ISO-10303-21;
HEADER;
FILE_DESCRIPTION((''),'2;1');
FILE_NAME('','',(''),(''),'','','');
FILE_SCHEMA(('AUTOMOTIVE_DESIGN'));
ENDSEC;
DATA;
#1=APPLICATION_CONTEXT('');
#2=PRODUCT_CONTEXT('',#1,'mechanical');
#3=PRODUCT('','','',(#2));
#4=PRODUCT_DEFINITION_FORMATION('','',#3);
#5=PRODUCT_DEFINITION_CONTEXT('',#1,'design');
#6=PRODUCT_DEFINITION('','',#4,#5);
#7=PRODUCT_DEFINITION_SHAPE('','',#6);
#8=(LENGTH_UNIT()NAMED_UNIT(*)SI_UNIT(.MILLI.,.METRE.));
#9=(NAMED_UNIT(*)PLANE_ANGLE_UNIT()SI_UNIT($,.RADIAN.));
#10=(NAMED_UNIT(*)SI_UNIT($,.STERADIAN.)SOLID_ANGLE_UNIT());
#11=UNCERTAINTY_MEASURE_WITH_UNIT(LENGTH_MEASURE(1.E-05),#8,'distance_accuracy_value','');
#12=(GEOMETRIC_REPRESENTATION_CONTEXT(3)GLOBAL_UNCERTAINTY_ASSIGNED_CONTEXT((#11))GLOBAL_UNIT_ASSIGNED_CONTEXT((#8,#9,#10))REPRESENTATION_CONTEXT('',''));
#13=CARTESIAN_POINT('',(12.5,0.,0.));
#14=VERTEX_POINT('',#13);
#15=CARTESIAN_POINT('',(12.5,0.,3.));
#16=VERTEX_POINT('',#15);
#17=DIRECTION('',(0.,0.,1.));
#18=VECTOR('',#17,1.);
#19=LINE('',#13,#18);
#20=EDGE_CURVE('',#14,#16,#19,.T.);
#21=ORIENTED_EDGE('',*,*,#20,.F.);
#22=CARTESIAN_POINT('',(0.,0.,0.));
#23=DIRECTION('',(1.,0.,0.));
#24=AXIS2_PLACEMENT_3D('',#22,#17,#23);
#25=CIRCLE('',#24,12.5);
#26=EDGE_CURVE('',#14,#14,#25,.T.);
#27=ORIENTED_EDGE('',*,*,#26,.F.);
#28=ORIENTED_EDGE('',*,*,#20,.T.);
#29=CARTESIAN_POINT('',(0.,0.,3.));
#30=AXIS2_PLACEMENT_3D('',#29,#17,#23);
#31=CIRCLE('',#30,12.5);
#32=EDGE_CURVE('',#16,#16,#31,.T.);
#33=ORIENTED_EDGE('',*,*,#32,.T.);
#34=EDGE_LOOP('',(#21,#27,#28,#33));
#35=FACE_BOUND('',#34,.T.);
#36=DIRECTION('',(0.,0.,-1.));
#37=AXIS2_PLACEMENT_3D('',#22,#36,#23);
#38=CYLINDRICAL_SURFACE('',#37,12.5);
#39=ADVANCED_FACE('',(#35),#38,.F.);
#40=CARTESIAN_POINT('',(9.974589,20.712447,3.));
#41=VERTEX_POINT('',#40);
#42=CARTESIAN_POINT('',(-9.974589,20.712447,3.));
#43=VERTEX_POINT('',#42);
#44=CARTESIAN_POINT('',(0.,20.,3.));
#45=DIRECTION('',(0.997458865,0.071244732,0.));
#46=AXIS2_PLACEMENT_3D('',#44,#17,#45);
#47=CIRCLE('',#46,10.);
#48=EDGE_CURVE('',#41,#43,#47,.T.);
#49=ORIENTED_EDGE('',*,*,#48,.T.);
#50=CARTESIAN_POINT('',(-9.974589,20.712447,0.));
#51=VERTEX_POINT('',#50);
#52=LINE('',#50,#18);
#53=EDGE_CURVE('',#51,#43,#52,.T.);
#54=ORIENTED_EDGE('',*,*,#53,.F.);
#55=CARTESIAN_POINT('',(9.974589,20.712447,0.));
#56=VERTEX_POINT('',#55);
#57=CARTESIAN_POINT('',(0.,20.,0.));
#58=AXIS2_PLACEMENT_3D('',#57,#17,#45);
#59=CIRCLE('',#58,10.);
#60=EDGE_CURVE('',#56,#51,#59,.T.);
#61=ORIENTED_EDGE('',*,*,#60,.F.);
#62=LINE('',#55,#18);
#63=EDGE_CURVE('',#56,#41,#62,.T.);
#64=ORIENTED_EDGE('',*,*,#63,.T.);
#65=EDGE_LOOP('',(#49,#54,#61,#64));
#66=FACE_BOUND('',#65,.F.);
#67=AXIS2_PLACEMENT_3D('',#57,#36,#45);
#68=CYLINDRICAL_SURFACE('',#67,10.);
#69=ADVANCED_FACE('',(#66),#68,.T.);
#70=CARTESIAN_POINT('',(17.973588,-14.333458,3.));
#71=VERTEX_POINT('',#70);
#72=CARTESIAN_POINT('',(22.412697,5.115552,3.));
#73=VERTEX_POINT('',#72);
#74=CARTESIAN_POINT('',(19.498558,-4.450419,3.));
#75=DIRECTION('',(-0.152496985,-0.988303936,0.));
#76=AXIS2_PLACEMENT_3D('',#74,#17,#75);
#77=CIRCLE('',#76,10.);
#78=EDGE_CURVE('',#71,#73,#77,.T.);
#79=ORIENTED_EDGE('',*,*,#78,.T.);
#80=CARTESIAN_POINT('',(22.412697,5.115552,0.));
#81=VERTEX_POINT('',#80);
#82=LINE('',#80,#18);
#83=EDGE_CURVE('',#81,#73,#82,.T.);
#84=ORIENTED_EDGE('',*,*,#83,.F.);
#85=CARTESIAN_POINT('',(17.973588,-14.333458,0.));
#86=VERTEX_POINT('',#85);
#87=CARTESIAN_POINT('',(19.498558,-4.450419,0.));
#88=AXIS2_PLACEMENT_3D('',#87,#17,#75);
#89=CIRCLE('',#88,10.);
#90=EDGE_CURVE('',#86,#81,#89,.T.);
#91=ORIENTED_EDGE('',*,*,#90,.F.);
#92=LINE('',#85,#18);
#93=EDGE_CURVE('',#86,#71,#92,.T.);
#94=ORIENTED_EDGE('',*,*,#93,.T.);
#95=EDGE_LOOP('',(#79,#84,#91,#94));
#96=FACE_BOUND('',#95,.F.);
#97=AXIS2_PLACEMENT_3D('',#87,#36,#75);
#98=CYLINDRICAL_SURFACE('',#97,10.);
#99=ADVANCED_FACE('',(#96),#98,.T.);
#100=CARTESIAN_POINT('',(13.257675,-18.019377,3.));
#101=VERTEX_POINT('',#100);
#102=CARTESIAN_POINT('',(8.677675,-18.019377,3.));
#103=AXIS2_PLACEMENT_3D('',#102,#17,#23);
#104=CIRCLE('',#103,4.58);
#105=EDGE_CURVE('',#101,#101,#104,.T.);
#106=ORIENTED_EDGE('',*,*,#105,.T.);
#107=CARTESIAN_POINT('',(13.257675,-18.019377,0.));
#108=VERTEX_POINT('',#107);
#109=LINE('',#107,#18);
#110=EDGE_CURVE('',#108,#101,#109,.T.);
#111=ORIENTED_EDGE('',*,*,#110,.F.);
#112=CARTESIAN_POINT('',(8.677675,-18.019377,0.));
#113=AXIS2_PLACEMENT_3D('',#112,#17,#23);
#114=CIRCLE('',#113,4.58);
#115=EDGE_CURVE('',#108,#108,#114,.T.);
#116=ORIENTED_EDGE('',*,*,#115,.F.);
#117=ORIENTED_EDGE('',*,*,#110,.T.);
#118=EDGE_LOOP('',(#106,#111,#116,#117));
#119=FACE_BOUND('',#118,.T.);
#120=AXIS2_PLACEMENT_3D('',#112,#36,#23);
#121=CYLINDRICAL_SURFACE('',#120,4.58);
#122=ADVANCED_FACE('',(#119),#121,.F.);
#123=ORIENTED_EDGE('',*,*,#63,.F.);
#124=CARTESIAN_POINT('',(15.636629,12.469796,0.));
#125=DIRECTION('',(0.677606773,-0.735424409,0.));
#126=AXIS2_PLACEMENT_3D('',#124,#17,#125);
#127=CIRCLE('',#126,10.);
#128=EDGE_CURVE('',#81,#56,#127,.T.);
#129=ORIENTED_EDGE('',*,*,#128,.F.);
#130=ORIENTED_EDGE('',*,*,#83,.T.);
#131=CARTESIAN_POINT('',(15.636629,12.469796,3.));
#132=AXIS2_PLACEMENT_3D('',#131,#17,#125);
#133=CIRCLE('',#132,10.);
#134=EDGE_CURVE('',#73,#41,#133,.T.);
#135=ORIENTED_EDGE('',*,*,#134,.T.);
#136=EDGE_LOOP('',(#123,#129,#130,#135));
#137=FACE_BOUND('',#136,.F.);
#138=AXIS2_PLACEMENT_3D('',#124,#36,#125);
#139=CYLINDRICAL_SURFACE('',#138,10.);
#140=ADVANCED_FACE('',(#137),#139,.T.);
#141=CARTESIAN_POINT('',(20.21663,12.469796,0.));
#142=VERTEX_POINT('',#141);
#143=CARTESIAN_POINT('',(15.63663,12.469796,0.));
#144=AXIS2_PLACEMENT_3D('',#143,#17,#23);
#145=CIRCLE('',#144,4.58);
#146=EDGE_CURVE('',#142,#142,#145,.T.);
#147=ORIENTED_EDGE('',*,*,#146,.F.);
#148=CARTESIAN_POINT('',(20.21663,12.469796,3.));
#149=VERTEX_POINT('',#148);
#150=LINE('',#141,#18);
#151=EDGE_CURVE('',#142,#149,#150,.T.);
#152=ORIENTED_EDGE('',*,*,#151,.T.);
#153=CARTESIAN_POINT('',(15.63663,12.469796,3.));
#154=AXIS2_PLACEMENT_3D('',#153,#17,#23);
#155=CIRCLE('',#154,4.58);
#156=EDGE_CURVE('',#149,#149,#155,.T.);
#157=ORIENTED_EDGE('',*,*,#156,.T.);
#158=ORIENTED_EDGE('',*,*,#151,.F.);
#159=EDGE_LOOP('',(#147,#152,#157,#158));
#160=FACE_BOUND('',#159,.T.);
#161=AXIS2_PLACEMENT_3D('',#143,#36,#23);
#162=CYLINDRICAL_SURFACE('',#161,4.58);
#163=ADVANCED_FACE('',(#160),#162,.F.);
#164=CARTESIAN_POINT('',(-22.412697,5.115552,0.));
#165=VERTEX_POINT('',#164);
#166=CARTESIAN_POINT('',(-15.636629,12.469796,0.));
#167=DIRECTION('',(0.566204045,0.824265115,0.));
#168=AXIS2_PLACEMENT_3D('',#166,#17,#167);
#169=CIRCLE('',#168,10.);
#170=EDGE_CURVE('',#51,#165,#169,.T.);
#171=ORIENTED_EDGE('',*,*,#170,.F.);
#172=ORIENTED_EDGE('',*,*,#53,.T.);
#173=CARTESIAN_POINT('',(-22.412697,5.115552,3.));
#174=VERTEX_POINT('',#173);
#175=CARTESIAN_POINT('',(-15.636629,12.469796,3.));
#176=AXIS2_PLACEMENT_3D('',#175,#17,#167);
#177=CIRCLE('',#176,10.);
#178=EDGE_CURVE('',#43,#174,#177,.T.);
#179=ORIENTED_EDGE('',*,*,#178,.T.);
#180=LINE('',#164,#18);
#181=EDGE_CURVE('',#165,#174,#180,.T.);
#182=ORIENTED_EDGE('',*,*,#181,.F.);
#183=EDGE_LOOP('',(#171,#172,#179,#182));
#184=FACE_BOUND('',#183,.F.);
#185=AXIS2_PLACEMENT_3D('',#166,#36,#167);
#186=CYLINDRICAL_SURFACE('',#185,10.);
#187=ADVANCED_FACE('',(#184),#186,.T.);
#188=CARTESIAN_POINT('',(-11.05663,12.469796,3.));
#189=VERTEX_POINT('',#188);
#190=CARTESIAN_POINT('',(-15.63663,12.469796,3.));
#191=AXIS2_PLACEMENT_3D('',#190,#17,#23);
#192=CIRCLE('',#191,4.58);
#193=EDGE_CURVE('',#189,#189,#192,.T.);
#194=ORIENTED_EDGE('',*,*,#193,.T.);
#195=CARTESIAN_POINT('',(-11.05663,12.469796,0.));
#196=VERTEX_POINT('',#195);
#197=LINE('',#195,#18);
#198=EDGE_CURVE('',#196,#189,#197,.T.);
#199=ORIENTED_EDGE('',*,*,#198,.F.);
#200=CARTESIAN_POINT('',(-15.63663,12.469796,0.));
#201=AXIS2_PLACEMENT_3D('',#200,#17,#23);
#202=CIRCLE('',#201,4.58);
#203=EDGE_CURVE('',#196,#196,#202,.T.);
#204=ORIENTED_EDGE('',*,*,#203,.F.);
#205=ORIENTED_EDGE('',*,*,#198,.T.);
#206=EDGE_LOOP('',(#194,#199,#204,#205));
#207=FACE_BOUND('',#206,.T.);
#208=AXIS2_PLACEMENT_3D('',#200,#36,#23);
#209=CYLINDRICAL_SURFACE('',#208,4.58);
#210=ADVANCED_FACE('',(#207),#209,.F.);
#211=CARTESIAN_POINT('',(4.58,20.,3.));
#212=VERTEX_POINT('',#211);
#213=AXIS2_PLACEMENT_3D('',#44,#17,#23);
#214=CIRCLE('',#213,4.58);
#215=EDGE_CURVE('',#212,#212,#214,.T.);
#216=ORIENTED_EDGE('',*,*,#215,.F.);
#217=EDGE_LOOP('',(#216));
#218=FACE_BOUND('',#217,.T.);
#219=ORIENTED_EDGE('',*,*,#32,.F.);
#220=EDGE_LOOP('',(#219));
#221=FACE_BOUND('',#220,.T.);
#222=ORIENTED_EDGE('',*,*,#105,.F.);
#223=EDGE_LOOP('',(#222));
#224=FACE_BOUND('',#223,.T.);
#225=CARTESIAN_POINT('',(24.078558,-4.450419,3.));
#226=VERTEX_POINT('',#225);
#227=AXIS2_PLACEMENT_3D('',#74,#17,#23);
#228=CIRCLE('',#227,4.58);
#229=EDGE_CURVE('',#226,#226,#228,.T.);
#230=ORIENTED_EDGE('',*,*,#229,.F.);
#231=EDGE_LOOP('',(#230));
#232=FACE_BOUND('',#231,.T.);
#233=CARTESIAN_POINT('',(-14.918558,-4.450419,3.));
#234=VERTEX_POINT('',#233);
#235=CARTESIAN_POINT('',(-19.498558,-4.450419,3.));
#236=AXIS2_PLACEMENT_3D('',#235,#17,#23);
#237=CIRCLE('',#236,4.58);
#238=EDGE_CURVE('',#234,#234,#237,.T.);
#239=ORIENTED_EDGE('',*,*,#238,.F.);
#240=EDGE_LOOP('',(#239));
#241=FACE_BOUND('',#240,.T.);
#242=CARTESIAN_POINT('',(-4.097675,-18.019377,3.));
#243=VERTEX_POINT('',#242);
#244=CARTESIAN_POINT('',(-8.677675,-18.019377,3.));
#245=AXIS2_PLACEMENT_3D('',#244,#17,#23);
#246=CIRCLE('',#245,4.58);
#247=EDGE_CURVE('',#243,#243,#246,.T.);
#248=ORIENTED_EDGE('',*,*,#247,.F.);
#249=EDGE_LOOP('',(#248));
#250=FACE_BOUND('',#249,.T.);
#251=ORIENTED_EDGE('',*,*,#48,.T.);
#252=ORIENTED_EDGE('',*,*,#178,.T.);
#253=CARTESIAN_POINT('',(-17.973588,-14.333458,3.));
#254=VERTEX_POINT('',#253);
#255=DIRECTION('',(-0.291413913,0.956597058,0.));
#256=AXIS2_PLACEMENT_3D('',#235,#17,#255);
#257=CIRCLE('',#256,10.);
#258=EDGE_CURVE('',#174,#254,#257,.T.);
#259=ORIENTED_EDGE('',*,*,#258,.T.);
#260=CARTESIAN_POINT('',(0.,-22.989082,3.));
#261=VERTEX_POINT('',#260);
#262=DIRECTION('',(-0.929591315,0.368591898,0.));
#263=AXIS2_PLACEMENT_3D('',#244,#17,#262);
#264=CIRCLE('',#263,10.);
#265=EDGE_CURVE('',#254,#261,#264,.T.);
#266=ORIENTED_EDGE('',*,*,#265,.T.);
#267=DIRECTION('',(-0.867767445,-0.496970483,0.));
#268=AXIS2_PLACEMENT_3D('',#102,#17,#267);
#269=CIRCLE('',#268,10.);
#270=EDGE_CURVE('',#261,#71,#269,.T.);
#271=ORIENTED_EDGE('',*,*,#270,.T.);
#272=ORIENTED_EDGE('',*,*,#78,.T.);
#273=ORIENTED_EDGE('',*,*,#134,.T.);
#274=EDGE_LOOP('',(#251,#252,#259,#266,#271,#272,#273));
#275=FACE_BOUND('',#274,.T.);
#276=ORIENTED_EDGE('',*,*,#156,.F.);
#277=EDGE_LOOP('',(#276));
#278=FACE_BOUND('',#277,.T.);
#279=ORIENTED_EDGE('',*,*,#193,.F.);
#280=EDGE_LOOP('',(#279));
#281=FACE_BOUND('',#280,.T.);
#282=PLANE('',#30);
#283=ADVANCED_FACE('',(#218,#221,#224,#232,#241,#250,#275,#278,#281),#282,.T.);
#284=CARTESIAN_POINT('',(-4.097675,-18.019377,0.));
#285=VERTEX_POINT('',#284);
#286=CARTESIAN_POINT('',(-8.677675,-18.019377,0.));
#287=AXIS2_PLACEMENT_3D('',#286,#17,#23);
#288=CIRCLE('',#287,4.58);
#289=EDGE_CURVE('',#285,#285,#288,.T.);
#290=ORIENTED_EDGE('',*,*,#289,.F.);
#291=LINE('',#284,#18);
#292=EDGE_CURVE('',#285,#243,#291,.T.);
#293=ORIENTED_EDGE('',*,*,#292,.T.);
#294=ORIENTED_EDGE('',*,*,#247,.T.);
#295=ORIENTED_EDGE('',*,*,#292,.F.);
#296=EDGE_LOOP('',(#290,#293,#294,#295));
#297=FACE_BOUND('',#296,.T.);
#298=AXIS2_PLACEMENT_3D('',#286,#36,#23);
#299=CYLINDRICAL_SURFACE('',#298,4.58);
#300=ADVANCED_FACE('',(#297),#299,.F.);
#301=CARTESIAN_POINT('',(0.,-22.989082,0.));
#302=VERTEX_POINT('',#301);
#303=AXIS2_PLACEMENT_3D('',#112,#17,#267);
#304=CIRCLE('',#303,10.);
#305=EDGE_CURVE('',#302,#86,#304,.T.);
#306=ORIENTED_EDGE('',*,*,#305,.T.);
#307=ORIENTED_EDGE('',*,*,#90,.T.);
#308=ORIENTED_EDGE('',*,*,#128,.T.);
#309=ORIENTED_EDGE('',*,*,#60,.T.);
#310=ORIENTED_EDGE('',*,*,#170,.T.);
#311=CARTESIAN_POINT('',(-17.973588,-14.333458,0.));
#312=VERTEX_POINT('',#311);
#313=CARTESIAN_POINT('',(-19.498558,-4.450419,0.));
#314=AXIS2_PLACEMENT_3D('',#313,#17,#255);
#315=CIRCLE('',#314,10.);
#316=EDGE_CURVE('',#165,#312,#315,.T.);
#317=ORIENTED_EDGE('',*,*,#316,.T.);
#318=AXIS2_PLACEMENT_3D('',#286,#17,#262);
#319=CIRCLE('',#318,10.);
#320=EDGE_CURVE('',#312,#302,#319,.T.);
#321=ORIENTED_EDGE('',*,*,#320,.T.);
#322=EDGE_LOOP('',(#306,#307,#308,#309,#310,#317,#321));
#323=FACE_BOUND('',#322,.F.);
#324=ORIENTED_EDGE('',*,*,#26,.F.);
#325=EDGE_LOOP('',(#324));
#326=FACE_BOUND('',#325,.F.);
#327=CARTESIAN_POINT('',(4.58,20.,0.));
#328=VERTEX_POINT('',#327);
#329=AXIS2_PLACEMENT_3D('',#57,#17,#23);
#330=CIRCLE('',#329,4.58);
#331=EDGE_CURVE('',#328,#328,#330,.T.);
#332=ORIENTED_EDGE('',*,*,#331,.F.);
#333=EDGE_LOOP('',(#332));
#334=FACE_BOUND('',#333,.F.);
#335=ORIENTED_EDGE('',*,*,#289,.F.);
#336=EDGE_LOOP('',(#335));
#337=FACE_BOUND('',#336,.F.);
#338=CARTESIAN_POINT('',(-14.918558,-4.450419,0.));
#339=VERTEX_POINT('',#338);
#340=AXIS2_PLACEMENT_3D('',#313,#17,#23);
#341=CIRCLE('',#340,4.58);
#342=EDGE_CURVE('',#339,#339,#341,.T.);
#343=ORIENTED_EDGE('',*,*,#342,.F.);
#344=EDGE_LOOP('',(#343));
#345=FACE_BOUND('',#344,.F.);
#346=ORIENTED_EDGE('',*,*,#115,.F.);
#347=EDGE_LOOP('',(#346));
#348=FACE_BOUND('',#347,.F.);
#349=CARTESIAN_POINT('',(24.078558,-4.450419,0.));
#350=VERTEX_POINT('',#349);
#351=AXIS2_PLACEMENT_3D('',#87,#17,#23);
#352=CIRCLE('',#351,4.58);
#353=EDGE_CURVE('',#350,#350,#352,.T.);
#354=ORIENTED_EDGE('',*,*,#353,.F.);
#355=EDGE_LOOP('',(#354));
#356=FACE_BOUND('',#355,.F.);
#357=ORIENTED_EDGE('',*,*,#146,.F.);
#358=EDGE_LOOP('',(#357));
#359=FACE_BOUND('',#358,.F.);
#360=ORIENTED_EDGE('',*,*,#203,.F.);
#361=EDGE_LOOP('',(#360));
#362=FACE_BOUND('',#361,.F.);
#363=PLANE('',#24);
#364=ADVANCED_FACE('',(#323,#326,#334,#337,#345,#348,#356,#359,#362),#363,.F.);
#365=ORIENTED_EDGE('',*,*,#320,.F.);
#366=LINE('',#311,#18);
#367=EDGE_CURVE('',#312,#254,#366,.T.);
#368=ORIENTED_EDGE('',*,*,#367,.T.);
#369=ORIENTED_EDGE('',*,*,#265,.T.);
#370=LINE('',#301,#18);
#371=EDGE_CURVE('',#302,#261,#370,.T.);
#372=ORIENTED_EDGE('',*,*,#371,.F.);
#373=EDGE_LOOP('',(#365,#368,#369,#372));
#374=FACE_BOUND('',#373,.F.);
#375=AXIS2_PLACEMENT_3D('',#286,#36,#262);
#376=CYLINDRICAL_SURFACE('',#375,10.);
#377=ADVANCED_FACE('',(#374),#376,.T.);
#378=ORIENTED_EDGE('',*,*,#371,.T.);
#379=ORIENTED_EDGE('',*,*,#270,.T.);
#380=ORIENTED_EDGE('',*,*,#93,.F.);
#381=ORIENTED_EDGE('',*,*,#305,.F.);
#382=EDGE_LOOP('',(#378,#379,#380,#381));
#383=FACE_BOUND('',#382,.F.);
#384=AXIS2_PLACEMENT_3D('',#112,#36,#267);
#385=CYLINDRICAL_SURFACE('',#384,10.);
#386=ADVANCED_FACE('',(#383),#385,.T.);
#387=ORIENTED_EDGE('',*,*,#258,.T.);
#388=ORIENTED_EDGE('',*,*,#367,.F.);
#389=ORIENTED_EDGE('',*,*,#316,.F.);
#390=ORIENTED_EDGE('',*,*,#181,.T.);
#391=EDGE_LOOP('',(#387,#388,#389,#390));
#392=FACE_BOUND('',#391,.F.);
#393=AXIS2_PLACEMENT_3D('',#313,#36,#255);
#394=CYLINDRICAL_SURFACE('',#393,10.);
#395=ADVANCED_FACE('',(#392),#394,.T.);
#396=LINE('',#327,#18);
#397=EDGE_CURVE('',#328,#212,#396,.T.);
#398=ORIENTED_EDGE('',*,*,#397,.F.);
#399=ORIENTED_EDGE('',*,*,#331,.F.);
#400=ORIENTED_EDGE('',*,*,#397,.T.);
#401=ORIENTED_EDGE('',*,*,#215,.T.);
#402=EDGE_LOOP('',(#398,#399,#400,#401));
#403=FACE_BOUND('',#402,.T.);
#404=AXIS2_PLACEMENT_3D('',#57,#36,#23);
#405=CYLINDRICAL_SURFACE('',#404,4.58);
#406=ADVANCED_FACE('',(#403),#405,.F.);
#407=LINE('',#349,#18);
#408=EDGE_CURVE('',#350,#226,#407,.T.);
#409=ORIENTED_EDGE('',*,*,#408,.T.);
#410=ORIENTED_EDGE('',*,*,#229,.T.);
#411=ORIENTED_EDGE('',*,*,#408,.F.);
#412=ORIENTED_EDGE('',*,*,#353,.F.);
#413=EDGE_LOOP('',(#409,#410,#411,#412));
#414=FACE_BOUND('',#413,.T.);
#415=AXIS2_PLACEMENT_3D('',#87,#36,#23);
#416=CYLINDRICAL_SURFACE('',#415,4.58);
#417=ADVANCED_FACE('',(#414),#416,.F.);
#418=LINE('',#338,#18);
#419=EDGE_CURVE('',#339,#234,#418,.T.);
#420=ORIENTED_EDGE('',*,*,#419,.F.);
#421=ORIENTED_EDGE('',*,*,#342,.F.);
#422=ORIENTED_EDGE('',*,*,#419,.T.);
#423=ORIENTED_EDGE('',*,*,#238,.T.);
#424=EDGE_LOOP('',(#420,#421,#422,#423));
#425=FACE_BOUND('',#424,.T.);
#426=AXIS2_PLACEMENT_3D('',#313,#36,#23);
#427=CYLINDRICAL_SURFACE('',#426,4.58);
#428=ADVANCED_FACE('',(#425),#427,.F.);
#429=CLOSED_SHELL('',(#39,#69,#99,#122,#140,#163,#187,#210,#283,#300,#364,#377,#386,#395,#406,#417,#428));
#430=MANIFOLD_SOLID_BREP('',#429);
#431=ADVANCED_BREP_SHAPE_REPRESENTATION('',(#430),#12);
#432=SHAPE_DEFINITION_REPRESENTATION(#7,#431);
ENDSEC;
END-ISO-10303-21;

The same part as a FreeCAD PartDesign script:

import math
import FreeCAD as App
import Part
import Sketcher
from FreeCAD import Vector
Q = App.Units.Quantity

doc = App.newDocument("Part")
params = doc.addObject("Spreadsheet::Sheet", "Params")
for row, (alias, value) in enumerate([
    ("sketch1_diameter", "25 mm"),
    ("sketch1_radius", "10 mm"),
    ("sketch1_diameter2", "9.16 mm"),
    ("pad1_length", "3 mm"),
], start=1):
    params.set(f"A{row}", alias)
    params.set(f"B{row}", "=" + value)
    params.setAlias(f"B{row}", alias)

body = doc.addObject("PartDesign::Body", "Body")

# Sketch on XY plane
sketch1 = body.newObject("Sketcher::SketchObject", "Sketch")
sketch1.AttachmentSupport = (doc.getObject("XY_Plane"), [""])
sketch1.MapMode = "FlatFace"
sketch1.addGeometry([
    Part.ArcOfCircle(Part.Circle(Vector(15.6, 12.5, 0), Vector(0, 0, 1), 10), math.radians(-47), math.radians(124)),  # 0
    Part.ArcOfCircle(Part.Circle(Vector(0, 20, 0), Vector(0, 0, 1), 10), math.radians(4), math.radians(176)),  # 1
    Part.ArcOfCircle(Part.Circle(Vector(-15.6, 12.5, 0), Vector(0, 0, 1), 10), math.radians(56), math.radians(227)),  # 2
    Part.ArcOfCircle(Part.Circle(Vector(-19.5, -4.5, 0), Vector(0, 0, 1), 10), math.radians(107), math.radians(279)),  # 3
    Part.ArcOfCircle(Part.Circle(Vector(-8.7, -18, 0), Vector(0, 0, 1), 10), math.radians(158), math.radians(330)),  # 4
    Part.ArcOfCircle(Part.Circle(Vector(8.7, -18, 0), Vector(0, 0, 1), 10), math.radians(-150), math.radians(22)),  # 5
    Part.ArcOfCircle(Part.Circle(Vector(19.5, -4.5, 0), Vector(0, 0, 1), 10), math.radians(-99), math.radians(73)),  # 6
    Part.Circle(Vector(-8.7, -18, 0), Vector(0, 0, 1), 4.6),  # 7
    Part.Circle(Vector(-19.5, -4.5, 0), Vector(0, 0, 1), 4.6),  # 8
    Part.Circle(Vector(8.7, -18, 0), Vector(0, 0, 1), 4.6),  # 9
    Part.Circle(Vector(0, 0, 0), Vector(0, 0, 1), 12.5),  # 10
    Part.Circle(Vector(19.5, -4.5, 0), Vector(0, 0, 1), 4.6),  # 11
    Part.Circle(Vector(-15.6, 12.5, 0), Vector(0, 0, 1), 4.6),  # 12
    Part.Circle(Vector(15.6, 12.5, 0), Vector(0, 0, 1), 4.6),  # 13
    Part.Circle(Vector(0, 20, 0), Vector(0, 0, 1), 4.6),  # 14
], False)
sketch1.addConstraint([
    Sketcher.Constraint("Coincident", 0, 2, 1, 1),
    Sketcher.Constraint("Coincident", 1, 2, 2, 1),
    Sketcher.Constraint("Coincident", 2, 2, 3, 1),
    Sketcher.Constraint("Coincident", 3, 2, 4, 1),
    Sketcher.Constraint("Coincident", 4, 2, 5, 1),
    Sketcher.Constraint("Coincident", 5, 2, 6, 1),
    Sketcher.Constraint("Coincident", 6, 2, 0, 1),
    Sketcher.Constraint("Coincident", 10, 3, -1, 1),
    Sketcher.Constraint("Coincident", 7, 3, 4, 3),
    Sketcher.Constraint("Coincident", 8, 3, 3, 3),
    Sketcher.Constraint("Coincident", 9, 3, 5, 3),
    Sketcher.Constraint("Coincident", 11, 3, 6, 3),
    Sketcher.Constraint("Coincident", 12, 3, 2, 3),
    Sketcher.Constraint("Coincident", 13, 3, 0, 3),
    Sketcher.Constraint("Coincident", 14, 3, 1, 3),
    Sketcher.Constraint("Equal", 0, 1),
    Sketcher.Constraint("Equal", 1, 2),
    Sketcher.Constraint("Equal", 2, 3),
    Sketcher.Constraint("Equal", 3, 4),
    Sketcher.Constraint("Equal", 4, 5),
    Sketcher.Constraint("Equal", 5, 6),
    Sketcher.Constraint("Equal", 7, 8),
    Sketcher.Constraint("Equal", 8, 9),
    Sketcher.Constraint("Equal", 9, 11),
    Sketcher.Constraint("Equal", 11, 12),
    Sketcher.Constraint("Equal", 12, 13),
    Sketcher.Constraint("Equal", 13, 14),
    Sketcher.Constraint("Symmetric", 0, 3, 2, 3, -2),
    Sketcher.Constraint("Symmetric", 4, 3, 5, 3, -2),
    Sketcher.Constraint("Symmetric", 3, 3, 6, 3, -2),
    Sketcher.Constraint("PointOnObject", 1, 3, -2),
    Sketcher.Constraint("Diameter", 10, Q("25 mm")),
    Sketcher.Constraint("Radius", 0, Q("10 mm")),
    Sketcher.Constraint("Diameter", 7, Q("9.16 mm")),
    Sketcher.Constraint("DistanceY", -1, 1, 1, 3, Q("20 mm")),
    Sketcher.Constraint("DistanceX", -1, 1, 0, 3, Q("15.636629 mm")),
    Sketcher.Constraint("DistanceY", 3, 3, -1, 1, Q("4.450419 mm")),
    Sketcher.Constraint("DistanceX", -1, 1, 0, 2, Q("9.974589 mm")),
    Sketcher.Constraint("DistanceY", -1, 1, 2, 2, Q("5.115552 mm")),
    Sketcher.Constraint("DistanceY", 3, 2, -1, 1, Q("14.333458 mm")),
    Sketcher.Constraint("DistanceY", 4, 3, 3, 3, Q("13.568958 mm")),
])
sketch1.setExpression("Constraints[31]", "Params.sketch1_diameter")
sketch1.setExpression("Constraints[32]", "Params.sketch1_radius")
sketch1.setExpression("Constraints[33]", "Params.sketch1_diameter2")
pad1 = body.newObject("PartDesign::Pad", "Pad")
pad1.Profile = sketch1
pad1.setExpression("Length", "Params.pad1_length")

doc.recompute()
